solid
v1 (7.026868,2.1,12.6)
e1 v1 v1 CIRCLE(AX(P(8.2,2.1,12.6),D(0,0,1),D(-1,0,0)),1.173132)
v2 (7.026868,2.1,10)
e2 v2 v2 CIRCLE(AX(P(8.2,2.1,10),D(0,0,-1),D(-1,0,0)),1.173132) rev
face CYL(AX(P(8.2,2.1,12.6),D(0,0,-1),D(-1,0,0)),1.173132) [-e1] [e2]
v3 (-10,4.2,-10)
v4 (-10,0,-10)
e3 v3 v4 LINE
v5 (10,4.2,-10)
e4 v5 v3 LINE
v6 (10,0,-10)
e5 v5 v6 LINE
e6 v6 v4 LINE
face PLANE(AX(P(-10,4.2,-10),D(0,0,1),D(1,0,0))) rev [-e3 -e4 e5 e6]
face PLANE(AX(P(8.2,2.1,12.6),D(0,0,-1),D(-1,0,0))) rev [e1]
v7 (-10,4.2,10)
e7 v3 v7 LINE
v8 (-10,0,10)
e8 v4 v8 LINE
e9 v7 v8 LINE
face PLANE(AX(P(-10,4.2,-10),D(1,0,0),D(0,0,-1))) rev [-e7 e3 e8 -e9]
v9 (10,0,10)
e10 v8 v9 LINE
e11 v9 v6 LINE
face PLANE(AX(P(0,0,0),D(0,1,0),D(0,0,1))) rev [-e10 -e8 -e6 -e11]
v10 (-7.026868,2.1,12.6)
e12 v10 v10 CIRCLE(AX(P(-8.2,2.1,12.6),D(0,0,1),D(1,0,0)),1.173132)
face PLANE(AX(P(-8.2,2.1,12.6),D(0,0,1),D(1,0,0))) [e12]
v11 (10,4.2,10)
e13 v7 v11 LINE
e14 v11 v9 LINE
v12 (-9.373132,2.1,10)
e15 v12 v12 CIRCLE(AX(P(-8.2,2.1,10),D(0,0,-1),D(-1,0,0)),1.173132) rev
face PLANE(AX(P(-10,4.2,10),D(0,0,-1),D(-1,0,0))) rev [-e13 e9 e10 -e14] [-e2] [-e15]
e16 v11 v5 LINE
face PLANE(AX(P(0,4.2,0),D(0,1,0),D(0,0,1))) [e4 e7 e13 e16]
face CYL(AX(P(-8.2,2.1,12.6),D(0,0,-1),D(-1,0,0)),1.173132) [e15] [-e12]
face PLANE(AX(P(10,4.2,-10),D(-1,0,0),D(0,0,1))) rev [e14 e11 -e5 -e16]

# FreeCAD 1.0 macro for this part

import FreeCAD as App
import Part
import Sketcher
from FreeCAD import Vector


def add_polygon(sketch, points):
    """Adds a closed chain of lines whose ends are joined by coincident constraints."""
    first, n = sketch.GeometryCount, len(points)
    for a, b in zip(points, points[1:] + points[:1]):
        sketch.addGeometry(Part.LineSegment(App.Vector(*a, 0), App.Vector(*b, 0)), False)
    for i in range(n):
        sketch.addConstraint(Sketcher.Constraint("Coincident", first + i, 2, first + (i + 1) % n, 1))

doc = App.newDocument("Part")
params = doc.addObject("Spreadsheet::Sheet", "Params")
for row, (alias, value) in enumerate([
    ("sketch1_width", "20 mm"),
    ("pad1_length", "4.2 mm"),
    ("pad2_length", "12.6 mm"),
], start=1):
    params.set(f"A{row}", alias)
    params.set(f"B{row}", "=" + value)
    params.setAlias(f"B{row}", alias)

body = doc.addObject("PartDesign::Body", "Body")

# Sketch on XZ plane
sketch1 = doc.addObject("Sketcher::SketchObject", "Sketch")
body.addObject(sketch1)
sketch1.AttachmentSupport = (doc.XZ_Plane, [""])
sketch1.MapMode = "FlatFace"
add_polygon(sketch1, [(-10, -10), (-10, 10), (10, 10), (10, -10)])  # lines 0-3
sketch1.addConstraint([
    Sketcher.Constraint("Vertical", 0),
    Sketcher.Constraint("Horizontal", 1),
    Sketcher.Constraint("Vertical", 2),
    Sketcher.Constraint("Horizontal", 3),
    Sketcher.Constraint("Symmetric", 0, 2, 2, 2, -1, 1),
    Sketcher.Constraint("Equal", 3, 0),
    Sketcher.Constraint("DistanceX", 1, 1, 1, 2, 20.0),
])
sketch1.setExpression("Constraints[10]", "Params.sketch1_width")
pad1 = doc.addObject("PartDesign::Pad", "Pad")
body.addObject(pad1)
pad1.Profile = sketch1
pad1.setExpression("Length", "Params.pad1_length")
pad1.Reversed = True

# Sketch on XY plane
sketch2 = doc.addObject("Sketcher::SketchObject", "Sketch001")
body.addObject(sketch2)
sketch2.AttachmentSupport = (doc.XY_Plane, [""])
sketch2.MapMode = "FlatFace"
sketch2.addGeometry([
    Part.Circle(Vector(-8.2, 2.1, 0), Vector(0, 0, 1), 1.2),
    Part.Circle(Vector(8.2, 2.1, 0), Vector(0, 0, 1), 1.2),
], False)
sketch2.addConstraint([
    Sketcher.Constraint("Equal", 0, 1),
    Sketcher.Constraint("Symmetric", 0, 3, 1, 3, -2),
    Sketcher.Constraint("DistanceX", 0, 3, -1, 1, 8.2),
    Sketcher.Constraint("DistanceY", -1, 1, 0, 3, 2.1),
    Sketcher.Constraint("Diameter", 0, 2.346264),
])
pad2 = doc.addObject("PartDesign::Pad", "Pad001")
body.addObject(pad2)
pad2.Profile = sketch2
pad2.setExpression("Length", "Params.pad2_length")

doc.recompute()
